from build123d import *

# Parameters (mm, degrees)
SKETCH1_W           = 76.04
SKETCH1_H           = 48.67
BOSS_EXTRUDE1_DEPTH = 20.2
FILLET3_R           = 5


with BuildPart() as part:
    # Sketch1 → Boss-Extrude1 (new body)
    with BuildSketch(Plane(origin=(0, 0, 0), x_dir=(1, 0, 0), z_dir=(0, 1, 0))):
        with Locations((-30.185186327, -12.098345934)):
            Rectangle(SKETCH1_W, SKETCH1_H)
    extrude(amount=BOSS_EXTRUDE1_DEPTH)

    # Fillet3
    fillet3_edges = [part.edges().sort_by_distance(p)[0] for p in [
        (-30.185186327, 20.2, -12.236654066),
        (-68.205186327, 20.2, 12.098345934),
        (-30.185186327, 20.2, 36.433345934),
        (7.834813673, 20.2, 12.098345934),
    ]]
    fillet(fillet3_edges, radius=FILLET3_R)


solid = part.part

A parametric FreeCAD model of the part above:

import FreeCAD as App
import Part
import Sketcher

V = App.Vector


def edges_at(feature, points):
    """Names of the edges that pass closest to the given points."""
    edges = feature.Shape.Edges
    near = lambda p: min(range(len(edges)), key=lambda i: edges[i].distToShape(Part.Vertex(*p))[0])
    return sorted({f"Edge{near(p) + 1}" for p in points})


def add_polygon(sketch, points):
    """Adds a closed chain of lines whose ends are joined by coincident constraints."""
    first, n = sketch.GeometryCount, len(points)
    for a, b in zip(points, points[1:] + points[:1]):
        sketch.addGeometry(Part.LineSegment(App.Vector(*a, 0), App.Vector(*b, 0)), False)
    for i in range(n):
        sketch.addConstraint(Sketcher.Constraint("Coincident", first + i, 2, first + (i + 1) % n, 1))

doc = App.newDocument("Part")
body = doc.addObject("PartDesign::Body", "Body")

# Sketch on XZ plane
sketch1 = body.newObject("Sketcher::SketchObject", "Sketch")
sketch1.AttachmentSupport = (doc.getObject("XZ_Plane"), [""])
sketch1.MapMode = "FlatFace"
add_polygon(sketch1, [(-68, -12), (-68, 36), (8, 36), (8, -12)])  # lines 0-3
sketch1.addConstraint(Sketcher.Constraint("Vertical", 0))
sketch1.addConstraint(Sketcher.Constraint("Horizontal", 1))
sketch1.addConstraint(Sketcher.Constraint("Vertical", 2))
sketch1.addConstraint(Sketcher.Constraint("Horizontal", 3))
sketch1.addConstraint(Sketcher.Constraint("DistanceX", 1, 1, 1, 2, 76.04))
sketch1.addConstraint(Sketcher.Constraint("DistanceY", 0, 1, 0, 2, 48.67))
sketch1.addConstraint(Sketcher.Constraint("DistanceX", 0, 2, -1, 1, 68.205186))
sketch1.addConstraint(Sketcher.Constraint("DistanceY", -1, 1, 0, 2, 36.433346))
pad1 = body.newObject("PartDesign::Pad", "Pad")
pad1.Profile = sketch1
pad1.Length = 20.2
pad1.Reversed = True
doc.recompute()

fillet = body.newObject("PartDesign::Fillet", "Fillet")
fillet.Base = (pad1, edges_at(pad1, [
    (-30.185, 20.2, -12.237),
    (-68.205, 20.2, 12.098),
    (-30.185, 20.2, 36.433),
    (7.835, 20.2, 12.098),
]))
fillet.Radius = 5

doc.recompute()
